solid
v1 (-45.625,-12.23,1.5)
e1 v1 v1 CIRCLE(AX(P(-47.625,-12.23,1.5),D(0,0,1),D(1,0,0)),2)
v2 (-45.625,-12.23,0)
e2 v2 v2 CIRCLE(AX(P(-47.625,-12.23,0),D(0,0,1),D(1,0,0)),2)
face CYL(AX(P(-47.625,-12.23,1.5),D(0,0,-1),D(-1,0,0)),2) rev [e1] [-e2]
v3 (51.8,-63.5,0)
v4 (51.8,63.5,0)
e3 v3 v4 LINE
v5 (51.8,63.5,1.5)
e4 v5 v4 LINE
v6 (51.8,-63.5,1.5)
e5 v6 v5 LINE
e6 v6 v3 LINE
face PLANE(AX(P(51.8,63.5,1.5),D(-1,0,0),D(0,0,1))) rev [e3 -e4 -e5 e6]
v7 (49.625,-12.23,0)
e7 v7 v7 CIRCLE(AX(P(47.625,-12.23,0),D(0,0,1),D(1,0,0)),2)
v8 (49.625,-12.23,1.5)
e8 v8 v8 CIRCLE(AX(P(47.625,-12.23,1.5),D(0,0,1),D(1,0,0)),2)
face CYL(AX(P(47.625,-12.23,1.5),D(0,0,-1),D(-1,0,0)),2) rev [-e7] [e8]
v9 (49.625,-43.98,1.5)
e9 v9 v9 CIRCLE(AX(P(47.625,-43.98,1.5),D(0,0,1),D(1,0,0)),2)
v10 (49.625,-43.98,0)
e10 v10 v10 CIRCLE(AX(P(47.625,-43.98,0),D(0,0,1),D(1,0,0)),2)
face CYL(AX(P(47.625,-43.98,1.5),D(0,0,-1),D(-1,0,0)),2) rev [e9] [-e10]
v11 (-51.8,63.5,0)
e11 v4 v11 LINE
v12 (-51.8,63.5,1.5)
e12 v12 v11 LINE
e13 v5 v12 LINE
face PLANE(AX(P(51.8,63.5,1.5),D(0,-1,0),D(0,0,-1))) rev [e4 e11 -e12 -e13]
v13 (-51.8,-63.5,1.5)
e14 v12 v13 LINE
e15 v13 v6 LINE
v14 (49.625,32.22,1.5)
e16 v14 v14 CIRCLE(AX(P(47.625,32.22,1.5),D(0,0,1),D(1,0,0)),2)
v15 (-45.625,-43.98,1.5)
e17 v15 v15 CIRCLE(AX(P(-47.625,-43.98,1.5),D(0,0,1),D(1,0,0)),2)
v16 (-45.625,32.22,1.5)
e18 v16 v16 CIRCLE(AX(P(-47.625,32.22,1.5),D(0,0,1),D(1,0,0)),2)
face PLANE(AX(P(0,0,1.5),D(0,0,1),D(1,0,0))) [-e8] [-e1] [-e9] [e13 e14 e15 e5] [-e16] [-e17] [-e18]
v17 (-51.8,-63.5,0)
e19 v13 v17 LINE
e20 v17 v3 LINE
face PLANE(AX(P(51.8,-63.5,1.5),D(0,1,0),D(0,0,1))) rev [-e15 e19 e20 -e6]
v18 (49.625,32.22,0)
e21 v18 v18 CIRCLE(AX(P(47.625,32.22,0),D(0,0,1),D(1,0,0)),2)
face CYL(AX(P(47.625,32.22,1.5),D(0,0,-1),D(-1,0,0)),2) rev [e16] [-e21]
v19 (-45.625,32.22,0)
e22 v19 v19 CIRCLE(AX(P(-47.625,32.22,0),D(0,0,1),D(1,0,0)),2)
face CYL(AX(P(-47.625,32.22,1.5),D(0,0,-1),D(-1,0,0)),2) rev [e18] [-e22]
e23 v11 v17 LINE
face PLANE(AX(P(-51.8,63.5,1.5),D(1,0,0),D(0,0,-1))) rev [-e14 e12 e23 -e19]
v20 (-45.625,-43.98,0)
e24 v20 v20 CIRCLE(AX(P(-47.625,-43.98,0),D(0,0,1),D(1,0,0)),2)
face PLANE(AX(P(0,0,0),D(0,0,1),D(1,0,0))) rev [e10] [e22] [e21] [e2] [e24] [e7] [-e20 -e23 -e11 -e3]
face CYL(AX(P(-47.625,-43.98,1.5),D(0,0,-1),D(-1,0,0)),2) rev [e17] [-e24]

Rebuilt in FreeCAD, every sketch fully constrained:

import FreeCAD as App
import Part
import Sketcher

V = App.Vector

doc = App.newDocument("Part")
body = doc.addObject("PartDesign::Body", "Body")

# Sketch on XY plane
sketch1 = body.newObject("Sketcher::SketchObject", "Sketch")
sketch1.AttachmentSupport = (doc.getObject("XY_Plane"), [""])
sketch1.MapMode = "FlatFace"
sketch1.addGeometry([
    Part.LineSegment(V(-51.8, -63.5, 0), V(51.8, -63.5, 0)),  # 0
    Part.LineSegment(V(51.8, -63.5, 0), V(51.8, 63.5, 0)),  # 1
    Part.LineSegment(V(51.8, 63.5, 0), V(-51.8, 63.5, 0)),  # 2
    Part.LineSegment(V(-51.8, 63.5, 0), V(-51.8, -63.5, 0)),  # 3
    Part.Circle(V(47.6, -44, 0), V(0, 0, 1), 2),  # 4
    Part.Circle(V(47.6, -12.2, 0), V(0, 0, 1), 2),  # 5
    Part.Circle(V(47.6, 32.2, 0), V(0, 0, 1), 2),  # 6
    Part.Circle(V(-47.6, -44, 0), V(0, 0, 1), 2),  # 7
    Part.Circle(V(-47.6, -12.2, 0), V(0, 0, 1), 2),  # 8
    Part.Circle(V(-47.6, 32.2, 0), V(0, 0, 1), 2),  # 9
], False)
sketch1.addConstraint([
    Sketcher.Constraint("Coincident", 0, 2, 1, 1),
    Sketcher.Constraint("Coincident", 1, 2, 2, 1),
    Sketcher.Constraint("Coincident", 2, 2, 3, 1),
    Sketcher.Constraint("Coincident", 3, 2, 0, 1),
    Sketcher.Constraint("Horizontal", 0),
    Sketcher.Constraint("Vertical", 1),
    Sketcher.Constraint("Horizontal", 2),
    Sketcher.Constraint("Vertical", 3),
    Sketcher.Constraint("Equal", 4, 5),
    Sketcher.Constraint("Equal", 5, 6),
    Sketcher.Constraint("Equal", 6, 7),
    Sketcher.Constraint("Equal", 7, 8),
    Sketcher.Constraint("Equal", 8, 9),
    Sketcher.Constraint("Symmetric", 0, 2, 2, 2, -1, 1),
    Sketcher.Constraint("Symmetric", 4, 3, 7, 3, -2),
    Sketcher.Constraint("Symmetric", 5, 3, 8, 3, -2),
    Sketcher.Constraint("Symmetric", 6, 3, 9, 3, -2),
    Sketcher.Constraint("Vertical", 4, 3, 5, 3),
    Sketcher.Constraint("Vertical", 5, 3, 6, 3),
    Sketcher.Constraint("Diameter", 4, 4.0),
    Sketcher.Constraint("DistanceY", 1, 1, 1, 2, 127.0),
    Sketcher.Constraint("DistanceX", 0, 1, 0, 2, 103.6),
    Sketcher.Constraint("DistanceY", 4, 3, 6, 3, 76.2),
    Sketcher.Constraint("DistanceY", 4, 3, -1, 1, 43.98),
    Sketcher.Constraint("DistanceY", 5, 3, -1, 1, 12.23),
    Sketcher.Constraint("DistanceX", 7, 3, 4, 3, 95.25),
])
pad1 = body.newObject("PartDesign::Pad", "Pad")
pad1.Profile = sketch1
pad1.Length = 1.5

doc.recompute()
